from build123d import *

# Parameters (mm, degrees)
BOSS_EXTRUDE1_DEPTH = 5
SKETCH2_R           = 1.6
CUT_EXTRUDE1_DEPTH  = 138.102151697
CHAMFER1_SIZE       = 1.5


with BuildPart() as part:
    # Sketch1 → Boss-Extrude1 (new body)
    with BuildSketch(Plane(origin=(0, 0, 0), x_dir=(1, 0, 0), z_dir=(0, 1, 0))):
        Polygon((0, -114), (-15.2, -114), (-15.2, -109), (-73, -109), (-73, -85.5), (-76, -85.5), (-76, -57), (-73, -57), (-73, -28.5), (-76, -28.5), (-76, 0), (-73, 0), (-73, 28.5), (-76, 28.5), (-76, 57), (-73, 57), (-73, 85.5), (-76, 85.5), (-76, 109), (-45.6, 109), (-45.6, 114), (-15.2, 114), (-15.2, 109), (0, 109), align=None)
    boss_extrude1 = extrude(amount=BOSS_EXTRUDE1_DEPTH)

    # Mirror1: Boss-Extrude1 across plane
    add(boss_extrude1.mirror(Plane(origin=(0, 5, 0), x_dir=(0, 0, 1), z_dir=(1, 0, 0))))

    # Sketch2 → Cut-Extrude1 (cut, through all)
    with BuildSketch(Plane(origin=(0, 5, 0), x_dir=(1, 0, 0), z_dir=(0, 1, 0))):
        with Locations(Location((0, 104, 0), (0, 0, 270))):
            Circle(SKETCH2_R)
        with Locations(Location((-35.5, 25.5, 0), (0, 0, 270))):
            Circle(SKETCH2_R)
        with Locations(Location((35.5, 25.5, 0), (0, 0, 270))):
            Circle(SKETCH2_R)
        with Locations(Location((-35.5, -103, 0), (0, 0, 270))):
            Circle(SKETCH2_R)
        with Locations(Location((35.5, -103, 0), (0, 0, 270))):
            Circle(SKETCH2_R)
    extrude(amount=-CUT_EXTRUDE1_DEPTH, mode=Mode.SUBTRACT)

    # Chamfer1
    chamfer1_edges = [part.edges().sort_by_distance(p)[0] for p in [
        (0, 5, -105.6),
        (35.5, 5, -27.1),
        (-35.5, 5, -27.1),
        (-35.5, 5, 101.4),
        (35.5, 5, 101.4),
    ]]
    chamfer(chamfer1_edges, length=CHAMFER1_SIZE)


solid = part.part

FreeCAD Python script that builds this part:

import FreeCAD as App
import Part
import Sketcher

V = App.Vector
Q = App.Units.Quantity


def edges_at(feature, points):
    """Names of the edges that pass closest to the given points."""
    edges = feature.Shape.Edges
    near = lambda p: min(range(len(edges)), key=lambda i: edges[i].distToShape(Part.Vertex(*p))[0])
    return sorted({f"Edge{near(p) + 1}" for p in points})


def add_polygon(sketch, points):
    """Adds a closed chain of lines whose ends are joined by coincident constraints."""
    first, n = sketch.GeometryCount, len(points)
    for a, b in zip(points, points[1:] + points[:1]):
        sketch.addGeometry(Part.LineSegment(App.Vector(*a, 0), App.Vector(*b, 0)), False)
    for i in range(n):
        sketch.addConstraint(Sketcher.Constraint("Coincident", first + i, 2, first + (i + 1) % n, 1))

doc = App.newDocument("Part")
body = doc.addObject("PartDesign::Body", "Body")

sketch1 = body.newObject("Sketcher::SketchObject", "Sketch")
sketch1.AttachmentSupport = (doc.getObject("XZ_Plane"), [""])
sketch1.MapMode = "FlatFace"
add_polygon(sketch1, [(-15.2, 114), (0, 114), (0, -109), (-15.2, -109), (-15.2, -114), (-45.6, -114), (-45.6, -109), (-76, -109), (-76, -85.5), (-73, -85.5), (-73, -57), (-76, -57), (-76, -28.5), (-73, -28.5), (-73, 0), (-76, 0), (-76, 28.5), (-73, 28.5), (-73, 57), (-76, 57), (-76, 85.5), (-73, 85.5), (-73, 109), (-15.2, 109)])
sketch1.addConstraint([
    Sketcher.Constraint("Horizontal", 0),
    Sketcher.Constraint("Vertical", 1),
    Sketcher.Constraint("Horizontal", 2),
    Sketcher.Constraint("Vertical", 3),
    Sketcher.Constraint("Horizontal", 4),
    Sketcher.Constraint("Vertical", 5),
    Sketcher.Constraint("Horizontal", 6),
    Sketcher.Constraint("Vertical", 7),
    Sketcher.Constraint("Horizontal", 8),
    Sketcher.Constraint("Vertical", 9),
    Sketcher.Constraint("Horizontal", 10),
    Sketcher.Constraint("Vertical", 11),
    Sketcher.Constraint("Horizontal", 12),
    Sketcher.Constraint("Vertical", 13),
    Sketcher.Constraint("Horizontal", 14),
    Sketcher.Constraint("Vertical", 15),
    Sketcher.Constraint("Horizontal", 16),
    Sketcher.Constraint("Vertical", 17),
    Sketcher.Constraint("Horizontal", 18),
    Sketcher.Constraint("Vertical", 19),
    Sketcher.Constraint("Horizontal", 20),
    Sketcher.Constraint("Vertical", 21),
    Sketcher.Constraint("Horizontal", 22),
    Sketcher.Constraint("Vertical", 23),
    Sketcher.Constraint("Symmetric", 11, 2, 15, 2, -1),
    Sketcher.Constraint("Symmetric", 9, 2, 17, 2, -1),
    Sketcher.Constraint("Symmetric", 7, 2, 19, 2, -1),
    Sketcher.Constraint("Symmetric", 2, 2, 22, 2, -1),
    Sketcher.Constraint("PointOnObject", 0, 2, -2),
    Sketcher.Constraint("PointOnObject", 13, 2, -1),
    Sketcher.Constraint("Horizontal", 2, 2, 5, 2),
    Sketcher.Constraint("Vertical", 7, 2, 10, 2),
    Sketcher.Constraint("Vertical", 9, 2, 12, 2),
    Sketcher.Constraint("Vertical", 17, 2, 20, 2),
    Sketcher.Constraint("Equal", 4, 6),
    Sketcher.Constraint("Equal", 9, 11),
    Sketcher.Constraint("Equal", 11, 13),
    Sketcher.Constraint("Equal", 5, 23),
    Sketcher.Constraint("DistanceX", 8, 1, 8, 2, Q("3 mm")),
    Sketcher.Constraint("DistanceY", 1, 2, 1, 1, Q("223 mm")),
    Sketcher.Constraint("DistanceY", 3, 2, 3, 1, Q("5 mm")),
    Sketcher.Constraint("DistanceX", 0, 1, 0, 2, Q("15.2 mm")),
    Sketcher.Constraint("DistanceX", 4, 2, 4, 1, Q("30.4 mm")),
    Sketcher.Constraint("DistanceY", 7, 1, 7, 2, Q("23.5 mm")),
])
pad1 = body.newObject("PartDesign::Pad", "Pad")
pad1.Profile = sketch1
pad1.Length = 5
pad1.Reversed = True
doc.recompute()

mirrored = body.newObject("PartDesign::Mirrored", "Mirrored")
mirrored.Originals = [pad1]
mirrored.MirrorPlane = (doc.getObject("YZ_Plane"), [""])
body.Tip = mirrored

sketch2 = body.newObject("Sketcher::SketchObject", "Sketch001")
sketch2.AttachmentSupport = (doc.getObject("XZ_Plane"), [""])
sketch2.MapMode = "FlatFace"
sketch2.AttachmentOffset = App.Placement(V(0, 0, -5), App.Rotation())
sketch2.addGeometry([
    Part.Circle(V(0, -104, 0), V(0, 0, 1), 1.6),
    Part.Circle(V(-35.5, -25.5, 0), V(0, 0, 1), 1.6),
    Part.Circle(V(35.5, -25.5, 0), V(0, 0, 1), 1.6),
    Part.Circle(V(-35.5, 103, 0), V(0, 0, 1), 1.6),
    Part.Circle(V(35.5, 103, 0), V(0, 0, 1), 1.6),
], False)
sketch2.addConstraint([
    Sketcher.Constraint("Equal", 0, 1),
    Sketcher.Constraint("Equal", 1, 2),
    Sketcher.Constraint("Equal", 2, 3),
    Sketcher.Constraint("Equal", 3, 4),
    Sketcher.Constraint("Symmetric", 1, 3, 2, 3, -2),
    Sketcher.Constraint("Symmetric", 3, 3, 4, 3, -2),
    Sketcher.Constraint("PointOnObject", 0, 3, -2),
    Sketcher.Constraint("Vertical", 1, 3, 3, 3),
    Sketcher.Constraint("Diameter", 0, Q("3.2 mm")),
    Sketcher.Constraint("DistanceY", 0, 3, -1, 1, Q("104 mm")),
    Sketcher.Constraint("DistanceY", -1, 1, 3, 3, Q("103 mm")),
    Sketcher.Constraint("DistanceX", 1, 3, 2, 3, Q("71 mm")),
    Sketcher.Constraint("DistanceY", 1, 3, -1, 1, Q("25.5 mm")),
])
pocket1 = body.newObject("PartDesign::Pocket", "Pocket")
pocket1.Profile = sketch2
pocket1.Type = "ThroughAll"
pocket1.Reversed = True
doc.recompute()

chamfer = body.newObject("PartDesign::Chamfer", "Chamfer")
chamfer.Base = (pocket1, edges_at(pocket1, [
    (0, 5, -105.6),
    (35.5, 5, -27.1),
    (-35.5, 5, -27.1),
    (-35.5, 5, 101.4),
    (35.5, 5, 101.4),
]))
chamfer.Size = 1.5

doc.recompute()
